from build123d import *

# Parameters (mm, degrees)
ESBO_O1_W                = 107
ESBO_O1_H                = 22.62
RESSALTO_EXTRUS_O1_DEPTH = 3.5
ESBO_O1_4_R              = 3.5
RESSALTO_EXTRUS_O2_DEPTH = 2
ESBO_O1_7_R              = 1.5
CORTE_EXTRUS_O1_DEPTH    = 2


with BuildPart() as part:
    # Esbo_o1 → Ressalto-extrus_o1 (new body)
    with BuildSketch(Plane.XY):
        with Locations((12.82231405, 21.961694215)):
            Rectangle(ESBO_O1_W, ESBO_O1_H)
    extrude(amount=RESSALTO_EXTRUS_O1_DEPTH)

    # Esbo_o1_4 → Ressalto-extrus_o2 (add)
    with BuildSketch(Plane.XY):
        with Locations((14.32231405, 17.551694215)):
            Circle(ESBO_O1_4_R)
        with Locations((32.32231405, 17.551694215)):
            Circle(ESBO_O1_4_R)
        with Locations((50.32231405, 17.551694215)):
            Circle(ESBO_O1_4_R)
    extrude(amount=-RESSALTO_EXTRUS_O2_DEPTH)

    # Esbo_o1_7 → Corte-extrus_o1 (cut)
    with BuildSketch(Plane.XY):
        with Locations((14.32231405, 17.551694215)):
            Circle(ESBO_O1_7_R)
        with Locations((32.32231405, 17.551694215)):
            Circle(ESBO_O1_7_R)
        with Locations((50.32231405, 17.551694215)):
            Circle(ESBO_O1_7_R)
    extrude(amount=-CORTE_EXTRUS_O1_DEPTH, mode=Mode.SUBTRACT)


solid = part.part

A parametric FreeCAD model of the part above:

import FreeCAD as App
import Part
import Sketcher
from FreeCAD import Vector


def add_polygon(sketch, points):
    """Adds a closed chain of lines whose ends are joined by coincident constraints."""
    first, n = sketch.GeometryCount, len(points)
    for a, b in zip(points, points[1:] + points[:1]):
        sketch.addGeometry(Part.LineSegment(App.Vector(*a, 0), App.Vector(*b, 0)), False)
    for i in range(n):
        sketch.addConstraint(Sketcher.Constraint("Coincident", first + i, 2, first + (i + 1) % n, 1))

doc = App.newDocument("Part")
body = doc.addObject("PartDesign::Body", "Body")

sketch1 = doc.addObject("Sketcher::SketchObject", "Sketch")
body.addObject(sketch1)
sketch1.AttachmentSupport = (doc.XY_Plane, [""])
sketch1.MapMode = "FlatFace"
add_polygon(sketch1, [(-41, 33), (-41, 11), (66, 11), (66, 33)])
sketch1.addConstraint(Sketcher.Constraint("Vertical", 0))
sketch1.addConstraint(Sketcher.Constraint("Horizontal", 1))
sketch1.addConstraint(Sketcher.Constraint("Vertical", 2))
sketch1.addConstraint(Sketcher.Constraint("Horizontal", 3))
sketch1.addConstraint(Sketcher.Constraint("DistanceX", 1, 1, 1, 2, 107.0))
sketch1.addConstraint(Sketcher.Constraint("DistanceY", 0, 2, 0, 1, 22.62))
sketch1.addConstraint(Sketcher.Constraint("DistanceX", 0, 2, -1, 1, 40.677686))
sketch1.addConstraint(Sketcher.Constraint("DistanceY", -1, 1, 0, 2, 10.651694))
pad1 = doc.addObject("PartDesign::Pad", "Pad")
body.addObject(pad1)
pad1.Profile = sketch1
pad1.Length = 3.5

sketch2 = doc.addObject("Sketcher::SketchObject", "Sketch001")
body.addObject(sketch2)
sketch2.AttachmentSupport = (doc.XY_Plane, [""])
sketch2.MapMode = "FlatFace"
sketch2.addGeometry(Part.Circle(Vector(14.3, 17.6, 0), Vector(0, 0, 1), 3.5), False)
sketch2.addGeometry(Part.Circle(Vector(32.3, 17.6, 0), Vector(0, 0, 1), 3.5), False)
sketch2.addGeometry(Part.Circle(Vector(50.3, 17.6, 0), Vector(0, 0, 1), 3.5), False)
sketch2.addConstraint(Sketcher.Constraint("Equal", 0, 1))
sketch2.addConstraint(Sketcher.Constraint("Equal", 1, 2))
sketch2.addConstraint(Sketcher.Constraint("Horizontal", 0, 3, 1, 3))
sketch2.addConstraint(Sketcher.Constraint("Horizontal", 1, 3, 2, 3))
sketch2.addConstraint(Sketcher.Constraint("Diameter", 0, 7.0))
sketch2.addConstraint(Sketcher.Constraint("DistanceX", 0, 3, 1, 3, 18.0))
sketch2.addConstraint(Sketcher.Constraint("DistanceX", 1, 3, 2, 3, 18.0))
sketch2.addConstraint(Sketcher.Constraint("DistanceX", -1, 1, 0, 3, 14.322314))
sketch2.addConstraint(Sketcher.Constraint("DistanceY", -1, 1, 0, 3, 17.551694))
pad2 = doc.addObject("PartDesign::Pad", "Pad001")
body.addObject(pad2)
pad2.Profile = sketch2
pad2.Length = 2
pad2.Reversed = True

sketch3 = doc.addObject("Sketcher::SketchObject", "Sketch002")
body.addObject(sketch3)
sketch3.AttachmentSupport = (doc.XY_Plane, [""])
sketch3.MapMode = "FlatFace"
sketch3.addGeometry(Part.Circle(Vector(14.3, 17.6, 0), Vector(0, 0, 1), 1.5), False)
sketch3.addGeometry(Part.Circle(Vector(32.3, 17.6, 0), Vector(0, 0, 1), 1.5), False)
sketch3.addGeometry(Part.Circle(Vector(50.3, 17.6, 0), Vector(0, 0, 1), 1.5), False)
sketch3.addConstraint(Sketcher.Constraint("Equal", 0, 1))
sketch3.addConstraint(Sketcher.Constraint("Equal", 1, 2))
sketch3.addConstraint(Sketcher.Constraint("Horizontal", 0, 3, 1, 3))
sketch3.addConstraint(Sketcher.Constraint("Horizontal", 1, 3, 2, 3))
sketch3.addConstraint(Sketcher.Constraint("Diameter", 0, 3.0))
sketch3.addConstraint(Sketcher.Constraint("DistanceX", 0, 3, 1, 3, 18.0))
sketch3.addConstraint(Sketcher.Constraint("DistanceX", 1, 3, 2, 3, 18.0))
sketch3.addConstraint(Sketcher.Constraint("DistanceX", -1, 1, 0, 3, 14.322314))
sketch3.addConstraint(Sketcher.Constraint("DistanceY", -1, 1, 0, 3, 17.551694))
pocket1 = doc.addObject("PartDesign::Pocket", "Pocket")
body.addObject(pocket1)
pocket1.Profile = sketch3
pocket1.Length = 2

doc.recompute()
